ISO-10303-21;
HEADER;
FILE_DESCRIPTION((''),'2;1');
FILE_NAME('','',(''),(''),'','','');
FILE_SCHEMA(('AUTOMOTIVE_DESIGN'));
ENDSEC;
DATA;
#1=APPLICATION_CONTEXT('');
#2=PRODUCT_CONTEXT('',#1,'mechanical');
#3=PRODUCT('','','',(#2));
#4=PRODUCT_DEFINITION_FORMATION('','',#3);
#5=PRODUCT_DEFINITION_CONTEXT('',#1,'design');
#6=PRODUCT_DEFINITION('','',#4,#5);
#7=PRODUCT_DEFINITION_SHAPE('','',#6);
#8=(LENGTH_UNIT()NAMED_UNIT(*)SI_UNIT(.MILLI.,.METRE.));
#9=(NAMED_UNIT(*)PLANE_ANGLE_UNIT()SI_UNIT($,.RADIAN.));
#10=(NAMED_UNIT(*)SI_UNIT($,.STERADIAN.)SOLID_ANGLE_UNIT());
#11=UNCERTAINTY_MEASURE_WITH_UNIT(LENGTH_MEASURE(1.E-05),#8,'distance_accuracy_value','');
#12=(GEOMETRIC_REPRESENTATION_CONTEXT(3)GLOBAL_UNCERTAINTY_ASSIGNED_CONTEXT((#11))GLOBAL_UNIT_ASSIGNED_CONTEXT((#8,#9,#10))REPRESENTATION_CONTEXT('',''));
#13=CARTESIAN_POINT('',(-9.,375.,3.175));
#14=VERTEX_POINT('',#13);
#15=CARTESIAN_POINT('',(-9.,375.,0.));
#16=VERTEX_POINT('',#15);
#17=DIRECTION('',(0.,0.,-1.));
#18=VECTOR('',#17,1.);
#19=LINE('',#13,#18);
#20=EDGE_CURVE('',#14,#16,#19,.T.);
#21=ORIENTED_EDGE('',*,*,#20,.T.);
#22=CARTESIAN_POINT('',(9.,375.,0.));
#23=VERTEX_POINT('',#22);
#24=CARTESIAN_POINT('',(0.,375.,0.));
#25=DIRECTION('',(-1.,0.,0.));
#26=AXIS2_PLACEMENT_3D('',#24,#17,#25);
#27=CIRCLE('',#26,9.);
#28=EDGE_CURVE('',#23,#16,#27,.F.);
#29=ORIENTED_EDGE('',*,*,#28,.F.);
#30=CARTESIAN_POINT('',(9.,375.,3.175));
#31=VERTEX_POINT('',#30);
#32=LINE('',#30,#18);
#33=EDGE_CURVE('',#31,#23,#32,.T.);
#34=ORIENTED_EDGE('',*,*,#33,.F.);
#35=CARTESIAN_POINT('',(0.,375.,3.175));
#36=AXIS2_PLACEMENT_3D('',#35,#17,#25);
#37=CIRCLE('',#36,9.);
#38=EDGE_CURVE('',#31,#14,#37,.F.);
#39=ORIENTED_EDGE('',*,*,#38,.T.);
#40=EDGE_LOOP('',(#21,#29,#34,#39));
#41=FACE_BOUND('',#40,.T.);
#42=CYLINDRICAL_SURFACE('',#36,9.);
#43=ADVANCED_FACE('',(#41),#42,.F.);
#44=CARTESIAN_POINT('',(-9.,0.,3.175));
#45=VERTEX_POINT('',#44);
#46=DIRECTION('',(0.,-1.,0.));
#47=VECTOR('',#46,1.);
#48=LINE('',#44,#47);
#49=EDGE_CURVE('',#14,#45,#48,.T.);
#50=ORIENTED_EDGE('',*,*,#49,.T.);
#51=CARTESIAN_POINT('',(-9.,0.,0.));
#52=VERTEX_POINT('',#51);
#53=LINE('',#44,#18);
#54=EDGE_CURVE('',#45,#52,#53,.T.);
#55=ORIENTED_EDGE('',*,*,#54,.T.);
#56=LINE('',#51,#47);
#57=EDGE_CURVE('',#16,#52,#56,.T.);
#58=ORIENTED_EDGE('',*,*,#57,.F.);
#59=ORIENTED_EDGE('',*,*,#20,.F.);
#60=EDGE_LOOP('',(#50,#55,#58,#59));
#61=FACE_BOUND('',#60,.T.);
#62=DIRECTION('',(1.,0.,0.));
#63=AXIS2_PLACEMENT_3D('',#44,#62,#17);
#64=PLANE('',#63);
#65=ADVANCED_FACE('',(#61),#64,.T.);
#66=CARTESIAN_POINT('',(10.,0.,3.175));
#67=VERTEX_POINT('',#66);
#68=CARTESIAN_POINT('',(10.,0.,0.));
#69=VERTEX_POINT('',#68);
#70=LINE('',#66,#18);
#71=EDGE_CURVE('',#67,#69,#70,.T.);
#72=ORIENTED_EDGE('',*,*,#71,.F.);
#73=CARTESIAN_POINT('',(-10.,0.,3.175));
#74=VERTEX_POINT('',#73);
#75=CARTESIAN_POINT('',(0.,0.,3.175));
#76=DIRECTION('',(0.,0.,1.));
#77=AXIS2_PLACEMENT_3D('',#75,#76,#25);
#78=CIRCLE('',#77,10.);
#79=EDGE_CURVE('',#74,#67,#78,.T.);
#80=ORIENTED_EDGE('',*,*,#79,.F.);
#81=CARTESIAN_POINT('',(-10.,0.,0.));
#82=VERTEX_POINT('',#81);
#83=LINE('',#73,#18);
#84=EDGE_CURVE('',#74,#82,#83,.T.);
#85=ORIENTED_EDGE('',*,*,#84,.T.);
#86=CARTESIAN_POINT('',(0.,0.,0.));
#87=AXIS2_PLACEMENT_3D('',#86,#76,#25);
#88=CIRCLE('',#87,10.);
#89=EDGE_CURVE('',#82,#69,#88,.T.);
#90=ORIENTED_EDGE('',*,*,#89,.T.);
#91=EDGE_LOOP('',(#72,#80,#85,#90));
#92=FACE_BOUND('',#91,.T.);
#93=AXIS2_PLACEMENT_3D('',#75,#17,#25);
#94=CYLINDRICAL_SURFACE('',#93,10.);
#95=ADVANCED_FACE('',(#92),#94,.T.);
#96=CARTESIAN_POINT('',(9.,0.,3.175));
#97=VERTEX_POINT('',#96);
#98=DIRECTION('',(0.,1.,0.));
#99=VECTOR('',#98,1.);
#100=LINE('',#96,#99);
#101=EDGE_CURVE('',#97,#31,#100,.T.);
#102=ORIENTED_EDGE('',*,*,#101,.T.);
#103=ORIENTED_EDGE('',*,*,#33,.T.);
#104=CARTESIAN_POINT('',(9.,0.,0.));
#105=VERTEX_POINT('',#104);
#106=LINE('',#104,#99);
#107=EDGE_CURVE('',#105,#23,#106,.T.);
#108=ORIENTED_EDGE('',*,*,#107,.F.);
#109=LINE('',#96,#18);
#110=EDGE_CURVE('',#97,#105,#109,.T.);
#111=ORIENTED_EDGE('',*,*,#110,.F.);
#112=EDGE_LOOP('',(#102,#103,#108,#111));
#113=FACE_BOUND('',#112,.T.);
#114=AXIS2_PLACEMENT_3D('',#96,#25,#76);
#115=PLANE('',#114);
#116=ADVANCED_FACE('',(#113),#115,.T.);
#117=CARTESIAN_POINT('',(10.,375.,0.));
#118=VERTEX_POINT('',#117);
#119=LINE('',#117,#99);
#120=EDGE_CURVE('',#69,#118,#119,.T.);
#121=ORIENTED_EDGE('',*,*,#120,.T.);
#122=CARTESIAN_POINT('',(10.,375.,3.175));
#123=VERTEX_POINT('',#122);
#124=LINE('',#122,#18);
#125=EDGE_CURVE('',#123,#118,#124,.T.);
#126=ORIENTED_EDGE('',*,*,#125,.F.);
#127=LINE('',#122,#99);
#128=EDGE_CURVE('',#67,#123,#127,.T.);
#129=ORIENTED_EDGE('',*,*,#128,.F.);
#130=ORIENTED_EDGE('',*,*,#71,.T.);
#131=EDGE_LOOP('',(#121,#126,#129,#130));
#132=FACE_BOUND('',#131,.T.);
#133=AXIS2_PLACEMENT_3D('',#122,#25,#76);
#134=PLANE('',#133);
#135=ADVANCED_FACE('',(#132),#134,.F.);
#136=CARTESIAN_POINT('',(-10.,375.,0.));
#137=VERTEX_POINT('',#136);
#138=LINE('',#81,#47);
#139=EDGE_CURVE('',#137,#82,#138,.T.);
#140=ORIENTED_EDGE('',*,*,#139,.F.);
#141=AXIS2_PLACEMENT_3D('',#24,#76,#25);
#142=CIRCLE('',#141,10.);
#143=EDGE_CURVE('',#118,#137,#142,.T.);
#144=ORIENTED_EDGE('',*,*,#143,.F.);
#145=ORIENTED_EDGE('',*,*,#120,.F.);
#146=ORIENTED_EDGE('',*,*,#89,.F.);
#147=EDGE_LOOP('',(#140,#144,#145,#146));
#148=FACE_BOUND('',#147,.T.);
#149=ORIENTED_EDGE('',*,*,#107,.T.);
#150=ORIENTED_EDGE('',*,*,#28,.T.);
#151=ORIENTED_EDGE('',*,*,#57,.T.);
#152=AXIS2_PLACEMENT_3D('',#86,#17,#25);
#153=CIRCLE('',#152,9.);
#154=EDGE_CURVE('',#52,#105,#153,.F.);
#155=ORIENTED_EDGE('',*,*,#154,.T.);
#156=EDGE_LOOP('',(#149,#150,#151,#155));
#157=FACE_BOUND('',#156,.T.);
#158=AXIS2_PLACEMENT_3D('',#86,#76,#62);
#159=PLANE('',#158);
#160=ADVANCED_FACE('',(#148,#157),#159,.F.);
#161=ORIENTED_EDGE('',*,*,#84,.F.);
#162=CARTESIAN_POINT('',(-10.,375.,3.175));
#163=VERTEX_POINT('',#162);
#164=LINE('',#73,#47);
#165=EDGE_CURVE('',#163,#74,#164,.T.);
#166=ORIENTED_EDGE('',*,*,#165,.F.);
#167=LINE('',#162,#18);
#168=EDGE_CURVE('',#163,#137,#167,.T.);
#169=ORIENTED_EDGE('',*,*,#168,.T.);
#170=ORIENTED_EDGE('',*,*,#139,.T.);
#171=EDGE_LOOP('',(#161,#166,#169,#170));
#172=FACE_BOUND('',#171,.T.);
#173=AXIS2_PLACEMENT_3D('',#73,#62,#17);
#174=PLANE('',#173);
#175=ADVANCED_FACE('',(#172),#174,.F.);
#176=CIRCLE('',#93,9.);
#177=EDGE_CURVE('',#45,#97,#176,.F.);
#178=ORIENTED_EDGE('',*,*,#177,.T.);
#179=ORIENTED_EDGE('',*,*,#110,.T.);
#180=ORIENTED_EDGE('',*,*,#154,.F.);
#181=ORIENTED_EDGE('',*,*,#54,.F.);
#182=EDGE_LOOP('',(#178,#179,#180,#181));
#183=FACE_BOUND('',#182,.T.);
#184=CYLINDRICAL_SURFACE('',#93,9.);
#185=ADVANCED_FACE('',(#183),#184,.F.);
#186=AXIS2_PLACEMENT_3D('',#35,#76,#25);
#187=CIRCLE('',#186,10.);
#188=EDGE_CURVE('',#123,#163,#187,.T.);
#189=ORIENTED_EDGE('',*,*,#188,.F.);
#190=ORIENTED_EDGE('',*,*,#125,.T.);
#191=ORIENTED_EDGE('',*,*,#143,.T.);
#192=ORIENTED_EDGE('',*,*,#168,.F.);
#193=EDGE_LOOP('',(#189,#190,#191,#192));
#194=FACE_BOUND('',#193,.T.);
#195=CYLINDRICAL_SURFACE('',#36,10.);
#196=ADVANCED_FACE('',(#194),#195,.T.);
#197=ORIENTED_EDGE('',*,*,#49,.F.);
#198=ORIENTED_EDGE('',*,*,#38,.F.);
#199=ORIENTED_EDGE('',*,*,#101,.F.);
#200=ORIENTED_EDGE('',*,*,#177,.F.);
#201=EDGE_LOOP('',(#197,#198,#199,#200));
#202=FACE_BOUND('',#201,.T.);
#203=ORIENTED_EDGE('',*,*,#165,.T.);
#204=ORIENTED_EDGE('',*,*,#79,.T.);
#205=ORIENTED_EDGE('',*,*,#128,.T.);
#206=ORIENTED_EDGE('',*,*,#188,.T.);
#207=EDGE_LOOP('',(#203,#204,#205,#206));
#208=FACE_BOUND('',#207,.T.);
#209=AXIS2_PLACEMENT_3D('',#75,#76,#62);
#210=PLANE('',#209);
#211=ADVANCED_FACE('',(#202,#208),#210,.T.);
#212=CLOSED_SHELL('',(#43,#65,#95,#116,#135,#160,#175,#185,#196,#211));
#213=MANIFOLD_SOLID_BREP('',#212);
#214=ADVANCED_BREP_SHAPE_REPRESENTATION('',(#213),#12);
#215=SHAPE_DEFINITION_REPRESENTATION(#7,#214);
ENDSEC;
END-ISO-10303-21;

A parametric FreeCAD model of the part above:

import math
import FreeCAD as App
import Part
import Sketcher
Q = App.Units.Quantity

doc = App.newDocument("Part")
body = doc.addObject("PartDesign::Body", "Body")

sketch1 = body.newObject("Sketcher::SketchObject", "Sketch")
sketch1.AttachmentSupport = (doc.getObject("XY_Plane"), [""])
sketch1.MapMode = "FlatFace"
sketch1.addGeometry([
    Part.LineSegment(App.Vector(-10, 375, 0), App.Vector(-10, 0, 0)),
    Part.ArcOfCircle(Part.Circle(App.Vector(0, 0, 0), App.Vector(0, 0, 1), 10), math.radians(180), math.radians(360)),
    Part.LineSegment(App.Vector(10, 0, 0), App.Vector(10, 375, 0)),
    Part.ArcOfCircle(Part.Circle(App.Vector(0, 375, 0), App.Vector(0, 0, 1), 10), math.radians(0), math.radians(180)),
    Part.LineSegment(App.Vector(-9, 0, 0), App.Vector(-9, 375, 0)),
    Part.ArcOfCircle(Part.Circle(App.Vector(0, 375, 0), App.Vector(0, 0, 1), 9), math.radians(0), math.radians(180)),
    Part.LineSegment(App.Vector(9, 375, 0), App.Vector(9, 0, 0)),
    Part.ArcOfCircle(Part.Circle(App.Vector(0, 0, 0), App.Vector(0, 0, 1), 9), math.radians(180), math.radians(360)),
], False)
sketch1.addConstraint([
    Sketcher.Constraint("Tangent", 0, 2, 1, 1),
    Sketcher.Constraint("Tangent", 1, 2, 2, 1),
    Sketcher.Constraint("Tangent", 2, 2, 3, 1),
    Sketcher.Constraint("Tangent", 3, 2, 0, 1),
    Sketcher.Constraint("Tangent", 4, 2, 5, 2),
    Sketcher.Constraint("Tangent", 5, 1, 6, 1),
    Sketcher.Constraint("Tangent", 6, 2, 7, 2),
    Sketcher.Constraint("Tangent", 7, 1, 4, 1),
    Sketcher.Constraint("Vertical", 0),
    Sketcher.Constraint("Vertical", 2),
    Sketcher.Constraint("Vertical", 4),
    Sketcher.Constraint("Vertical", 6),
    Sketcher.Constraint("Coincident", 1, 3, -1, 1),
    Sketcher.Constraint("Coincident", 7, 3, -1, 1),
    Sketcher.Constraint("Horizontal", 5, 3, 2, 2),
    Sketcher.Constraint("Radius", 1, Q("10 mm")),
    Sketcher.Constraint("Radius", 5, Q("9 mm")),
    Sketcher.Constraint("DistanceY", 0, 2, 0, 1, Q("375 mm")),
])
pad1 = body.newObject("PartDesign::Pad", "Pad")
pad1.Profile = sketch1
pad1.Length = 3.175

doc.recompute()
